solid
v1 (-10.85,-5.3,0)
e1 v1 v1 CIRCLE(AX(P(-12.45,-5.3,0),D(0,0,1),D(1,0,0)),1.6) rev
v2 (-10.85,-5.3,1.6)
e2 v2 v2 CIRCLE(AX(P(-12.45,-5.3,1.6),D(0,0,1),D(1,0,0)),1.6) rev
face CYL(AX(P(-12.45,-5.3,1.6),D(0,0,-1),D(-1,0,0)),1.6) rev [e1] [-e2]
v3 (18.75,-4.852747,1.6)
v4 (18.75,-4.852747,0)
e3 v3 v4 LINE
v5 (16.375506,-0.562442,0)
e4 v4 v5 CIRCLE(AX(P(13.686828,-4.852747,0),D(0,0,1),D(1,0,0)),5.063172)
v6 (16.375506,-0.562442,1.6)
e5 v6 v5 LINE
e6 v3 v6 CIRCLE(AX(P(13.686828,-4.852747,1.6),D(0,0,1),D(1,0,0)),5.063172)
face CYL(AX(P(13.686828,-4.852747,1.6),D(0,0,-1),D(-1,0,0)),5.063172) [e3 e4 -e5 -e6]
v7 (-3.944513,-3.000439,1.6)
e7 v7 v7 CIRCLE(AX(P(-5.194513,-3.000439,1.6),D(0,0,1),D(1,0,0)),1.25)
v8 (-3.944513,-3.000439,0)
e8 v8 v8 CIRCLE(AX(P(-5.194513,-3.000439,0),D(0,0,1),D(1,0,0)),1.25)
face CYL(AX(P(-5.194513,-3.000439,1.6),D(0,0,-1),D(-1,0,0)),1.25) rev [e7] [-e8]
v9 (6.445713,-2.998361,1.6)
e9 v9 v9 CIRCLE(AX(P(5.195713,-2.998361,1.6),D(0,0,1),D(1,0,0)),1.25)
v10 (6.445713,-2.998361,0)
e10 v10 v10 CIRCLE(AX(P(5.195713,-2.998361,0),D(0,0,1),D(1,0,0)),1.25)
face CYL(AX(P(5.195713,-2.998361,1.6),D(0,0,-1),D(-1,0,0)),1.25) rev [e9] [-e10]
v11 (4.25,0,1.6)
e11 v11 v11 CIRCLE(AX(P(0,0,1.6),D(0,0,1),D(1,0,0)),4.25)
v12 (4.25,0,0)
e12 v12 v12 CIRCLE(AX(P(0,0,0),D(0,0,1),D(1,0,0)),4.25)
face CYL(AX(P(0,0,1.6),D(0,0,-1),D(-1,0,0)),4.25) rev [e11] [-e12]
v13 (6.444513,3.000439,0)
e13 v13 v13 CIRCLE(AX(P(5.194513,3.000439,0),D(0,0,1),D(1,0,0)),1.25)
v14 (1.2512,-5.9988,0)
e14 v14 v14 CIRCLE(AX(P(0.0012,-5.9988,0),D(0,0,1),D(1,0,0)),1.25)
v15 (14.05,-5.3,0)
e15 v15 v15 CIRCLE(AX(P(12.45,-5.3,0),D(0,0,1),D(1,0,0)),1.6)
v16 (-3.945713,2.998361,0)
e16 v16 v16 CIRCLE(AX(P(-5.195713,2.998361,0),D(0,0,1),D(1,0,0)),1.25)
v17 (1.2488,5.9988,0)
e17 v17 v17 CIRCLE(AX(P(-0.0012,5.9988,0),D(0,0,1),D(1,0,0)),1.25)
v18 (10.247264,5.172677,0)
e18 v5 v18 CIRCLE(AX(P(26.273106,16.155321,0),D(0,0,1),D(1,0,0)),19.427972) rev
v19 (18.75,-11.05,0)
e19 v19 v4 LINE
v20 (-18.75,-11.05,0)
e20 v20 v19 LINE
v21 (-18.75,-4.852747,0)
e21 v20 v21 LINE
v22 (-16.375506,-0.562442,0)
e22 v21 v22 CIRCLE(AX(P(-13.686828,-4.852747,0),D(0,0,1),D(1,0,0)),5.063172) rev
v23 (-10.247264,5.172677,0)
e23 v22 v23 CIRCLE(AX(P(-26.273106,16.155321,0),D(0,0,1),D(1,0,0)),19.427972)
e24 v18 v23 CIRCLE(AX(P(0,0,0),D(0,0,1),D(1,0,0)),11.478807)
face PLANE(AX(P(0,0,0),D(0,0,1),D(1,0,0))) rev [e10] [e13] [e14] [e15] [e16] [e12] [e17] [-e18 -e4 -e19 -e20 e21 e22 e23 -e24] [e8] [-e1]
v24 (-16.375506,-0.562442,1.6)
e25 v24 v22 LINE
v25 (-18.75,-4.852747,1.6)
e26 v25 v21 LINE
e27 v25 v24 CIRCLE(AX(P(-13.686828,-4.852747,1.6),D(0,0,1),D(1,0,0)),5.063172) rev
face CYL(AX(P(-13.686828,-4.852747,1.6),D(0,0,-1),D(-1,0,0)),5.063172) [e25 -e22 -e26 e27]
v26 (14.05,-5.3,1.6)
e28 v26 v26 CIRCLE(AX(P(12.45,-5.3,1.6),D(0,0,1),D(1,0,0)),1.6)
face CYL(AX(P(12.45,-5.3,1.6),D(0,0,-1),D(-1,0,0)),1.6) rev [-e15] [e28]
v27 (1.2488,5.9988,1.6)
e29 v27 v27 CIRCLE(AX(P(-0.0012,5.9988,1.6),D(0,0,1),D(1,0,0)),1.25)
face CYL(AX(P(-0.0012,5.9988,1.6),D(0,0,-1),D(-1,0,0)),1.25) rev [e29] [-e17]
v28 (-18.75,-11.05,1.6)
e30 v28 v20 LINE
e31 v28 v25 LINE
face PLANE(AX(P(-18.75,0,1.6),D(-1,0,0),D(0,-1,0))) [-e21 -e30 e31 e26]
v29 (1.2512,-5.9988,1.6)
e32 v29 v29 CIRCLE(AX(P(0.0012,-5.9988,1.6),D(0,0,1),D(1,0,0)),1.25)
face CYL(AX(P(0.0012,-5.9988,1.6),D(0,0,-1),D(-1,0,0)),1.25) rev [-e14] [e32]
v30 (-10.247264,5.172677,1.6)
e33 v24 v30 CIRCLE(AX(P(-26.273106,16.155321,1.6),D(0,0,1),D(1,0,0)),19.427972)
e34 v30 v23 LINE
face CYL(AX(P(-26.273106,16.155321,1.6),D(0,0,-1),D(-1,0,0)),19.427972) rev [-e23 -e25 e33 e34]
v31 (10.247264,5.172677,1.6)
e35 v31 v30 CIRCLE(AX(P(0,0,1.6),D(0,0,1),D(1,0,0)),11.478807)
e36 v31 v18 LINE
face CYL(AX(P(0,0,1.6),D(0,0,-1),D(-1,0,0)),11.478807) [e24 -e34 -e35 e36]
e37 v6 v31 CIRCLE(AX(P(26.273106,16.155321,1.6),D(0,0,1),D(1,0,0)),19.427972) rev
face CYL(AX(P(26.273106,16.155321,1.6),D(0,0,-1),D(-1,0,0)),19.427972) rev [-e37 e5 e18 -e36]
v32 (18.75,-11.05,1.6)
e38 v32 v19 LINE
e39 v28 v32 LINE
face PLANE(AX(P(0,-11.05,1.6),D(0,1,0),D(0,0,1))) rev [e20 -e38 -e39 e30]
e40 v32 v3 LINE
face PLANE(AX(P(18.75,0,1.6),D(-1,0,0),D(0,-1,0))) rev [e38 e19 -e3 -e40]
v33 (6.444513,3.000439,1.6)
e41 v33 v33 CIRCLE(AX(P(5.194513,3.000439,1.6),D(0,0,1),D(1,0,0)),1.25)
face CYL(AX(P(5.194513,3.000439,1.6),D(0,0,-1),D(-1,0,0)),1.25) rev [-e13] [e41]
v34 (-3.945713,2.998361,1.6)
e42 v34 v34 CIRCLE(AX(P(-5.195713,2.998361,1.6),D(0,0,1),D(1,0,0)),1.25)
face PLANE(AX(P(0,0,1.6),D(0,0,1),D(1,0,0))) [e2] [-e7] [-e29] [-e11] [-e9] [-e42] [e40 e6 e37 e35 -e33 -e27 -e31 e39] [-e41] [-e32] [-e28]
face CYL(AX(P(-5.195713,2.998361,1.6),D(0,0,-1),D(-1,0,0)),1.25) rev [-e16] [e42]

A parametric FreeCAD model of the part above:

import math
import FreeCAD as App
import Part
import Sketcher
from FreeCAD import Vector

doc = App.newDocument("Part")
params = doc.addObject("Spreadsheet::Sheet", "Params")
for row, (alias, value) in enumerate([
    ("sketch1_diameter", "3.2 mm"),
    ("sketch1_diameter2", "2.5 mm"),
    ("sketch1_diameter3", "8.5 mm"),
    ("sketch1_width", "37.5 mm"),
    ("pad1_length", "1.6 mm"),
], start=1):
    params.set(f"A{row}", alias)
    params.set(f"B{row}", "=" + value)
    params.setAlias(f"B{row}", alias)

body = doc.addObject("PartDesign::Body", "Body")

# Sketch on XY plane
sketch1 = doc.addObject("Sketcher::SketchObject", "Sketch")
body.addObject(sketch1)
sketch1.AttachmentSupport = (doc.XY_Plane, [""])
sketch1.MapMode = "FlatFace"
sketch1.addGeometry([
    Part.LineSegment(Vector(-18.8, -11.1, 0), Vector(18.8, -11.1, 0)),  # 0
    Part.LineSegment(Vector(18.8, -11.1, 0), Vector(18.8, -4.9, 0)),  # 1
    Part.ArcOfCircle(Part.Circle(Vector(13.7, -4.9, 0), Vector(0, 0, 1), 5.1), math.radians(0), math.radians(58)),  # 2
    Part.ArcOfCircle(Part.Circle(Vector(26.3, 16.2, 0), Vector(0, 0, 1), 19.4), math.radians(-146), math.radians(-121)),  # 3
    Part.ArcOfCircle(Part.Circle(Vector(0, 0, 0), Vector(0, 0, 1), 11.5), math.radians(27), math.radians(153)),  # 4
    Part.ArcOfCircle(Part.Circle(Vector(-26.3, 16.2, 0), Vector(0, 0, 1), 19.4), math.radians(-59), math.radians(-34)),  # 5
    Part.ArcOfCircle(Part.Circle(Vector(-13.7, -4.9, 0), Vector(0, 0, 1), 5.1), math.radians(122), math.radians(180)),  # 6
    Part.LineSegment(Vector(-18.8, -4.9, 0), Vector(-18.8, -11.1, 0)),  # 7
    Part.Circle(Vector(-12.4, -5.3, 0), Vector(0, 0, 1), 1.6),  # 8
    Part.Circle(Vector(-5.2, -3, 0), Vector(0, 0, 1), 1.2),  # 9
    Part.Circle(Vector(0, -6, 0), Vector(0, 0, 1), 1.2),  # 10
    Part.Circle(Vector(12.4, -5.3, 0), Vector(0, 0, 1), 1.6),  # 11
    Part.Circle(Vector(5.2, -3, 0), Vector(0, 0, 1), 1.2),  # 12
    Part.Circle(Vector(0, 0, 0), Vector(0, 0, 1), 4.2),  # 13
    Part.Circle(Vector(-5.2, 3, 0), Vector(0, 0, 1), 1.3),  # 14
    Part.Circle(Vector(0, 6, 0), Vector(0, 0, 1), 1.2),  # 15
    Part.Circle(Vector(5.2, 3, 0), Vector(0, 0, 1), 1.2),  # 16
], False)
sketch1.addConstraint([
    Sketcher.Constraint("Coincident", 0, 2, 1, 1),
    Sketcher.Constraint("Tangent", 1, 2, 2, 1),
    Sketcher.Constraint("Coincident", 2, 2, 3, 2),
    Sketcher.Constraint("Coincident", 3, 1, 4, 1),
    Sketcher.Constraint("Coincident", 4, 2, 5, 2),
    Sketcher.Constraint("Coincident", 5, 1, 6, 1),
    Sketcher.Constraint("Tangent", 6, 2, 7, 1),
    Sketcher.Constraint("Coincident", 7, 2, 0, 1),
    Sketcher.Constraint("Horizontal", 0),
    Sketcher.Constraint("Vertical", 1),
    Sketcher.Constraint("Vertical", 7),
    Sketcher.Constraint("Coincident", 4, 3, -1, 1),
    Sketcher.Constraint("Coincident", 13, 3, -1, 1),
    Sketcher.Constraint("Equal", 3, 5),
    Sketcher.Constraint("Equal", 2, 6),
    Sketcher.Constraint("Equal", 9, 10),
    Sketcher.Constraint("Equal", 8, 11),
    Sketcher.Constraint("Equal", 10, 12),
    Sketcher.Constraint("Equal", 12, 14),
    Sketcher.Constraint("Equal", 14, 15),
    Sketcher.Constraint("Equal", 15, 16),
    Sketcher.Constraint("Symmetric", 12, 3, 14, 3, -1, 1),
    Sketcher.Constraint("Symmetric", 10, 3, 15, 3, -1, 1),
    Sketcher.Constraint("Symmetric", 9, 3, 16, 3, -1, 1),
    Sketcher.Constraint("Symmetric", 3, 3, 5, 3, -2),
    Sketcher.Constraint("Symmetric", 2, 3, 6, 3, -2),
    Sketcher.Constraint("Symmetric", 8, 3, 11, 3, -2),
    Sketcher.Constraint("Diameter", 8, 3.2),
    Sketcher.Constraint("Diameter", 9, 2.5),
    Sketcher.Constraint("Diameter", 13, 8.5),
    Sketcher.Constraint("DistanceX", 0, 1, 0, 2, 37.5),
    Sketcher.Constraint("DistanceY", 8, 3, -1, 1, 5.3),
    Sketcher.Constraint("DistanceX", 8, 3, 11, 3, 24.9),
    Sketcher.Constraint("DistanceY", 0, 2, -1, 1, 11.05),
    Sketcher.Constraint("Radius", 3, 19.427972),
    Sketcher.Constraint("Radius", 2, 5.063172),
    Sketcher.Constraint("Radius", 4, 11.478807),
    Sketcher.Constraint("DistanceX", -1, 1, 10, 3, 0.0012),
    Sketcher.Constraint("DistanceY", 10, 3, -1, 1, 5.9988),
    Sketcher.Constraint("DistanceX", 14, 3, 9, 3, 0.0012),
    Sketcher.Constraint("DistanceY", 9, 3, 14, 3, 5.9988),
    Sketcher.Constraint("DistanceY", 1, 1, 1, 2, 6.197253),
    Sketcher.Constraint("DistanceY", -1, 1, 3, 3, 16.155321),
    Sketcher.Constraint("DistanceY", 9, 3, -1, 1, 3.000439),
    Sketcher.Constraint("DistanceY", 2, 2, -1, 1, 0.562442),
    Sketcher.Constraint("DistanceX", 9, 3, 2, 3, 18.881341),
])
sketch1.setExpression("Constraints[27]", "Params.sketch1_diameter")
sketch1.setExpression("Constraints[28]", "Params.sketch1_diameter2")
sketch1.setExpression("Constraints[29]", "Params.sketch1_diameter3")
sketch1.setExpression("Constraints[30]", "Params.sketch1_width")
pad1 = doc.addObject("PartDesign::Pad", "Pad")
body.addObject(pad1)
pad1.Profile = sketch1
pad1.setExpression("Length", "Params.pad1_length")

doc.recompute()
